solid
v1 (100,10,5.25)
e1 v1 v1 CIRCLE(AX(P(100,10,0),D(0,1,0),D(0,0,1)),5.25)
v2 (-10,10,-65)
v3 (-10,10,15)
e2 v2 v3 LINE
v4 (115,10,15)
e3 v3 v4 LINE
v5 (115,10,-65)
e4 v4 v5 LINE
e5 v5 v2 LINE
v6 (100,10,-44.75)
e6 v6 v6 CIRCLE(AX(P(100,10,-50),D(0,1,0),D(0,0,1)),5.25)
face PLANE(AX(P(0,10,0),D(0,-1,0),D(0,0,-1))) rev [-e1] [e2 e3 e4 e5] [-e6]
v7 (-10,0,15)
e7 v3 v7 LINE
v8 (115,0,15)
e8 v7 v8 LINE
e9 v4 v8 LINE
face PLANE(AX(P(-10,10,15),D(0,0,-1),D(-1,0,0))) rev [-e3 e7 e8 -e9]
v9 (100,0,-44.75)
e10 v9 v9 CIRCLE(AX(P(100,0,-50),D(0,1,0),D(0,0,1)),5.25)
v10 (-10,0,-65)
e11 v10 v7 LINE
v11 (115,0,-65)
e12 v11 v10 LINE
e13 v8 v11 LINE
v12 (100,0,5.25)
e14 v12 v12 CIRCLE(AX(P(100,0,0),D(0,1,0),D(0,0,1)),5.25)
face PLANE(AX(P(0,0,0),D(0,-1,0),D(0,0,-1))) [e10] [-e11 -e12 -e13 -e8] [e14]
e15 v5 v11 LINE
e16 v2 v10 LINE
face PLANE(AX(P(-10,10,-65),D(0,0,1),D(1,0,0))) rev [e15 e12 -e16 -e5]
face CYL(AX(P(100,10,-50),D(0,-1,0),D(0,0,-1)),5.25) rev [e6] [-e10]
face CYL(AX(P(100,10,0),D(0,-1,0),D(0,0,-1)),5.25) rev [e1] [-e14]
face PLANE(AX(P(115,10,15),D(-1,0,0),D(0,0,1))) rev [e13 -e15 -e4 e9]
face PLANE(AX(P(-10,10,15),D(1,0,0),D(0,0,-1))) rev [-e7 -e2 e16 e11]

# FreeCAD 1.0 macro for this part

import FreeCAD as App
import Part
import Sketcher


def add_polygon(sketch, points):
    """Adds a closed chain of lines whose ends are joined by coincident constraints."""
    first, n = sketch.GeometryCount, len(points)
    for a, b in zip(points, points[1:] + points[:1]):
        sketch.addGeometry(Part.LineSegment(App.Vector(*a, 0), App.Vector(*b, 0)), False)
    for i in range(n):
        sketch.addConstraint(Sketcher.Constraint("Coincident", first + i, 2, first + (i + 1) % n, 1))

doc = App.newDocument("Part")
params = doc.addObject("Spreadsheet::Sheet", "Params")
for row, (alias, value) in enumerate([
    ("sketch1_diameter", "10.5 mm"),
    ("sketch1_width", "125 mm"),
    ("sketch1_height", "80 mm"),
    ("pad1_length", "10 mm"),
], start=1):
    params.set(f"A{row}", alias)
    params.set(f"B{row}", "=" + value)
    params.setAlias(f"B{row}", alias)

body = doc.addObject("PartDesign::Body", "Body")

sketch1 = body.newObject("Sketcher::SketchObject", "Sketch")
sketch1.AttachmentSupport = (doc.getObject("XZ_Plane"), [""])
sketch1.MapMode = "FlatFace"
add_polygon(sketch1, [(-10, -65), (-10, 15), (115, 15), (115, -65)])
sketch1.addGeometry(Part.Circle(App.Vector(100, 0, 0), App.Vector(0, 0, 1), 5), False)
sketch1.addGeometry(Part.Circle(App.Vector(100, -50, 0), App.Vector(0, 0, 1), 5), False)
sketch1.addConstraint([
    Sketcher.Constraint("Vertical", 0),
    Sketcher.Constraint("Horizontal", 1),
    Sketcher.Constraint("Vertical", 2),
    Sketcher.Constraint("Horizontal", 3),
    Sketcher.Constraint("Equal", 4, 5),
    Sketcher.Constraint("PointOnObject", 4, 3, -1),
    Sketcher.Constraint("Vertical", 4, 3, 5, 3),
    Sketcher.Constraint("Diameter", 4, 10.5),
    Sketcher.Constraint("DistanceX", 1, 1, 1, 2, 125.0),
    Sketcher.Constraint("DistanceY", 0, 1, 0, 2, 80.0),
    Sketcher.Constraint("DistanceX", -1, 1, 4, 3, 100.0),
    Sketcher.Constraint("DistanceY", 5, 3, -1, 1, 50.0),
    Sketcher.Constraint("DistanceX", 0, 2, -1, 1, 10.0),
    Sketcher.Constraint("DistanceY", -1, 1, 0, 2, 15.0),
])
sketch1.setExpression("Constraints[11]", "Params.sketch1_diameter")
sketch1.setExpression("Constraints[12]", "Params.sketch1_width")
sketch1.setExpression("Constraints[13]", "Params.sketch1_height")
pad1 = body.newObject("PartDesign::Pad", "Pad")
pad1.Profile = sketch1
pad1.setExpression("Length", "Params.pad1_length")
pad1.Reversed = True

doc.recompute()
